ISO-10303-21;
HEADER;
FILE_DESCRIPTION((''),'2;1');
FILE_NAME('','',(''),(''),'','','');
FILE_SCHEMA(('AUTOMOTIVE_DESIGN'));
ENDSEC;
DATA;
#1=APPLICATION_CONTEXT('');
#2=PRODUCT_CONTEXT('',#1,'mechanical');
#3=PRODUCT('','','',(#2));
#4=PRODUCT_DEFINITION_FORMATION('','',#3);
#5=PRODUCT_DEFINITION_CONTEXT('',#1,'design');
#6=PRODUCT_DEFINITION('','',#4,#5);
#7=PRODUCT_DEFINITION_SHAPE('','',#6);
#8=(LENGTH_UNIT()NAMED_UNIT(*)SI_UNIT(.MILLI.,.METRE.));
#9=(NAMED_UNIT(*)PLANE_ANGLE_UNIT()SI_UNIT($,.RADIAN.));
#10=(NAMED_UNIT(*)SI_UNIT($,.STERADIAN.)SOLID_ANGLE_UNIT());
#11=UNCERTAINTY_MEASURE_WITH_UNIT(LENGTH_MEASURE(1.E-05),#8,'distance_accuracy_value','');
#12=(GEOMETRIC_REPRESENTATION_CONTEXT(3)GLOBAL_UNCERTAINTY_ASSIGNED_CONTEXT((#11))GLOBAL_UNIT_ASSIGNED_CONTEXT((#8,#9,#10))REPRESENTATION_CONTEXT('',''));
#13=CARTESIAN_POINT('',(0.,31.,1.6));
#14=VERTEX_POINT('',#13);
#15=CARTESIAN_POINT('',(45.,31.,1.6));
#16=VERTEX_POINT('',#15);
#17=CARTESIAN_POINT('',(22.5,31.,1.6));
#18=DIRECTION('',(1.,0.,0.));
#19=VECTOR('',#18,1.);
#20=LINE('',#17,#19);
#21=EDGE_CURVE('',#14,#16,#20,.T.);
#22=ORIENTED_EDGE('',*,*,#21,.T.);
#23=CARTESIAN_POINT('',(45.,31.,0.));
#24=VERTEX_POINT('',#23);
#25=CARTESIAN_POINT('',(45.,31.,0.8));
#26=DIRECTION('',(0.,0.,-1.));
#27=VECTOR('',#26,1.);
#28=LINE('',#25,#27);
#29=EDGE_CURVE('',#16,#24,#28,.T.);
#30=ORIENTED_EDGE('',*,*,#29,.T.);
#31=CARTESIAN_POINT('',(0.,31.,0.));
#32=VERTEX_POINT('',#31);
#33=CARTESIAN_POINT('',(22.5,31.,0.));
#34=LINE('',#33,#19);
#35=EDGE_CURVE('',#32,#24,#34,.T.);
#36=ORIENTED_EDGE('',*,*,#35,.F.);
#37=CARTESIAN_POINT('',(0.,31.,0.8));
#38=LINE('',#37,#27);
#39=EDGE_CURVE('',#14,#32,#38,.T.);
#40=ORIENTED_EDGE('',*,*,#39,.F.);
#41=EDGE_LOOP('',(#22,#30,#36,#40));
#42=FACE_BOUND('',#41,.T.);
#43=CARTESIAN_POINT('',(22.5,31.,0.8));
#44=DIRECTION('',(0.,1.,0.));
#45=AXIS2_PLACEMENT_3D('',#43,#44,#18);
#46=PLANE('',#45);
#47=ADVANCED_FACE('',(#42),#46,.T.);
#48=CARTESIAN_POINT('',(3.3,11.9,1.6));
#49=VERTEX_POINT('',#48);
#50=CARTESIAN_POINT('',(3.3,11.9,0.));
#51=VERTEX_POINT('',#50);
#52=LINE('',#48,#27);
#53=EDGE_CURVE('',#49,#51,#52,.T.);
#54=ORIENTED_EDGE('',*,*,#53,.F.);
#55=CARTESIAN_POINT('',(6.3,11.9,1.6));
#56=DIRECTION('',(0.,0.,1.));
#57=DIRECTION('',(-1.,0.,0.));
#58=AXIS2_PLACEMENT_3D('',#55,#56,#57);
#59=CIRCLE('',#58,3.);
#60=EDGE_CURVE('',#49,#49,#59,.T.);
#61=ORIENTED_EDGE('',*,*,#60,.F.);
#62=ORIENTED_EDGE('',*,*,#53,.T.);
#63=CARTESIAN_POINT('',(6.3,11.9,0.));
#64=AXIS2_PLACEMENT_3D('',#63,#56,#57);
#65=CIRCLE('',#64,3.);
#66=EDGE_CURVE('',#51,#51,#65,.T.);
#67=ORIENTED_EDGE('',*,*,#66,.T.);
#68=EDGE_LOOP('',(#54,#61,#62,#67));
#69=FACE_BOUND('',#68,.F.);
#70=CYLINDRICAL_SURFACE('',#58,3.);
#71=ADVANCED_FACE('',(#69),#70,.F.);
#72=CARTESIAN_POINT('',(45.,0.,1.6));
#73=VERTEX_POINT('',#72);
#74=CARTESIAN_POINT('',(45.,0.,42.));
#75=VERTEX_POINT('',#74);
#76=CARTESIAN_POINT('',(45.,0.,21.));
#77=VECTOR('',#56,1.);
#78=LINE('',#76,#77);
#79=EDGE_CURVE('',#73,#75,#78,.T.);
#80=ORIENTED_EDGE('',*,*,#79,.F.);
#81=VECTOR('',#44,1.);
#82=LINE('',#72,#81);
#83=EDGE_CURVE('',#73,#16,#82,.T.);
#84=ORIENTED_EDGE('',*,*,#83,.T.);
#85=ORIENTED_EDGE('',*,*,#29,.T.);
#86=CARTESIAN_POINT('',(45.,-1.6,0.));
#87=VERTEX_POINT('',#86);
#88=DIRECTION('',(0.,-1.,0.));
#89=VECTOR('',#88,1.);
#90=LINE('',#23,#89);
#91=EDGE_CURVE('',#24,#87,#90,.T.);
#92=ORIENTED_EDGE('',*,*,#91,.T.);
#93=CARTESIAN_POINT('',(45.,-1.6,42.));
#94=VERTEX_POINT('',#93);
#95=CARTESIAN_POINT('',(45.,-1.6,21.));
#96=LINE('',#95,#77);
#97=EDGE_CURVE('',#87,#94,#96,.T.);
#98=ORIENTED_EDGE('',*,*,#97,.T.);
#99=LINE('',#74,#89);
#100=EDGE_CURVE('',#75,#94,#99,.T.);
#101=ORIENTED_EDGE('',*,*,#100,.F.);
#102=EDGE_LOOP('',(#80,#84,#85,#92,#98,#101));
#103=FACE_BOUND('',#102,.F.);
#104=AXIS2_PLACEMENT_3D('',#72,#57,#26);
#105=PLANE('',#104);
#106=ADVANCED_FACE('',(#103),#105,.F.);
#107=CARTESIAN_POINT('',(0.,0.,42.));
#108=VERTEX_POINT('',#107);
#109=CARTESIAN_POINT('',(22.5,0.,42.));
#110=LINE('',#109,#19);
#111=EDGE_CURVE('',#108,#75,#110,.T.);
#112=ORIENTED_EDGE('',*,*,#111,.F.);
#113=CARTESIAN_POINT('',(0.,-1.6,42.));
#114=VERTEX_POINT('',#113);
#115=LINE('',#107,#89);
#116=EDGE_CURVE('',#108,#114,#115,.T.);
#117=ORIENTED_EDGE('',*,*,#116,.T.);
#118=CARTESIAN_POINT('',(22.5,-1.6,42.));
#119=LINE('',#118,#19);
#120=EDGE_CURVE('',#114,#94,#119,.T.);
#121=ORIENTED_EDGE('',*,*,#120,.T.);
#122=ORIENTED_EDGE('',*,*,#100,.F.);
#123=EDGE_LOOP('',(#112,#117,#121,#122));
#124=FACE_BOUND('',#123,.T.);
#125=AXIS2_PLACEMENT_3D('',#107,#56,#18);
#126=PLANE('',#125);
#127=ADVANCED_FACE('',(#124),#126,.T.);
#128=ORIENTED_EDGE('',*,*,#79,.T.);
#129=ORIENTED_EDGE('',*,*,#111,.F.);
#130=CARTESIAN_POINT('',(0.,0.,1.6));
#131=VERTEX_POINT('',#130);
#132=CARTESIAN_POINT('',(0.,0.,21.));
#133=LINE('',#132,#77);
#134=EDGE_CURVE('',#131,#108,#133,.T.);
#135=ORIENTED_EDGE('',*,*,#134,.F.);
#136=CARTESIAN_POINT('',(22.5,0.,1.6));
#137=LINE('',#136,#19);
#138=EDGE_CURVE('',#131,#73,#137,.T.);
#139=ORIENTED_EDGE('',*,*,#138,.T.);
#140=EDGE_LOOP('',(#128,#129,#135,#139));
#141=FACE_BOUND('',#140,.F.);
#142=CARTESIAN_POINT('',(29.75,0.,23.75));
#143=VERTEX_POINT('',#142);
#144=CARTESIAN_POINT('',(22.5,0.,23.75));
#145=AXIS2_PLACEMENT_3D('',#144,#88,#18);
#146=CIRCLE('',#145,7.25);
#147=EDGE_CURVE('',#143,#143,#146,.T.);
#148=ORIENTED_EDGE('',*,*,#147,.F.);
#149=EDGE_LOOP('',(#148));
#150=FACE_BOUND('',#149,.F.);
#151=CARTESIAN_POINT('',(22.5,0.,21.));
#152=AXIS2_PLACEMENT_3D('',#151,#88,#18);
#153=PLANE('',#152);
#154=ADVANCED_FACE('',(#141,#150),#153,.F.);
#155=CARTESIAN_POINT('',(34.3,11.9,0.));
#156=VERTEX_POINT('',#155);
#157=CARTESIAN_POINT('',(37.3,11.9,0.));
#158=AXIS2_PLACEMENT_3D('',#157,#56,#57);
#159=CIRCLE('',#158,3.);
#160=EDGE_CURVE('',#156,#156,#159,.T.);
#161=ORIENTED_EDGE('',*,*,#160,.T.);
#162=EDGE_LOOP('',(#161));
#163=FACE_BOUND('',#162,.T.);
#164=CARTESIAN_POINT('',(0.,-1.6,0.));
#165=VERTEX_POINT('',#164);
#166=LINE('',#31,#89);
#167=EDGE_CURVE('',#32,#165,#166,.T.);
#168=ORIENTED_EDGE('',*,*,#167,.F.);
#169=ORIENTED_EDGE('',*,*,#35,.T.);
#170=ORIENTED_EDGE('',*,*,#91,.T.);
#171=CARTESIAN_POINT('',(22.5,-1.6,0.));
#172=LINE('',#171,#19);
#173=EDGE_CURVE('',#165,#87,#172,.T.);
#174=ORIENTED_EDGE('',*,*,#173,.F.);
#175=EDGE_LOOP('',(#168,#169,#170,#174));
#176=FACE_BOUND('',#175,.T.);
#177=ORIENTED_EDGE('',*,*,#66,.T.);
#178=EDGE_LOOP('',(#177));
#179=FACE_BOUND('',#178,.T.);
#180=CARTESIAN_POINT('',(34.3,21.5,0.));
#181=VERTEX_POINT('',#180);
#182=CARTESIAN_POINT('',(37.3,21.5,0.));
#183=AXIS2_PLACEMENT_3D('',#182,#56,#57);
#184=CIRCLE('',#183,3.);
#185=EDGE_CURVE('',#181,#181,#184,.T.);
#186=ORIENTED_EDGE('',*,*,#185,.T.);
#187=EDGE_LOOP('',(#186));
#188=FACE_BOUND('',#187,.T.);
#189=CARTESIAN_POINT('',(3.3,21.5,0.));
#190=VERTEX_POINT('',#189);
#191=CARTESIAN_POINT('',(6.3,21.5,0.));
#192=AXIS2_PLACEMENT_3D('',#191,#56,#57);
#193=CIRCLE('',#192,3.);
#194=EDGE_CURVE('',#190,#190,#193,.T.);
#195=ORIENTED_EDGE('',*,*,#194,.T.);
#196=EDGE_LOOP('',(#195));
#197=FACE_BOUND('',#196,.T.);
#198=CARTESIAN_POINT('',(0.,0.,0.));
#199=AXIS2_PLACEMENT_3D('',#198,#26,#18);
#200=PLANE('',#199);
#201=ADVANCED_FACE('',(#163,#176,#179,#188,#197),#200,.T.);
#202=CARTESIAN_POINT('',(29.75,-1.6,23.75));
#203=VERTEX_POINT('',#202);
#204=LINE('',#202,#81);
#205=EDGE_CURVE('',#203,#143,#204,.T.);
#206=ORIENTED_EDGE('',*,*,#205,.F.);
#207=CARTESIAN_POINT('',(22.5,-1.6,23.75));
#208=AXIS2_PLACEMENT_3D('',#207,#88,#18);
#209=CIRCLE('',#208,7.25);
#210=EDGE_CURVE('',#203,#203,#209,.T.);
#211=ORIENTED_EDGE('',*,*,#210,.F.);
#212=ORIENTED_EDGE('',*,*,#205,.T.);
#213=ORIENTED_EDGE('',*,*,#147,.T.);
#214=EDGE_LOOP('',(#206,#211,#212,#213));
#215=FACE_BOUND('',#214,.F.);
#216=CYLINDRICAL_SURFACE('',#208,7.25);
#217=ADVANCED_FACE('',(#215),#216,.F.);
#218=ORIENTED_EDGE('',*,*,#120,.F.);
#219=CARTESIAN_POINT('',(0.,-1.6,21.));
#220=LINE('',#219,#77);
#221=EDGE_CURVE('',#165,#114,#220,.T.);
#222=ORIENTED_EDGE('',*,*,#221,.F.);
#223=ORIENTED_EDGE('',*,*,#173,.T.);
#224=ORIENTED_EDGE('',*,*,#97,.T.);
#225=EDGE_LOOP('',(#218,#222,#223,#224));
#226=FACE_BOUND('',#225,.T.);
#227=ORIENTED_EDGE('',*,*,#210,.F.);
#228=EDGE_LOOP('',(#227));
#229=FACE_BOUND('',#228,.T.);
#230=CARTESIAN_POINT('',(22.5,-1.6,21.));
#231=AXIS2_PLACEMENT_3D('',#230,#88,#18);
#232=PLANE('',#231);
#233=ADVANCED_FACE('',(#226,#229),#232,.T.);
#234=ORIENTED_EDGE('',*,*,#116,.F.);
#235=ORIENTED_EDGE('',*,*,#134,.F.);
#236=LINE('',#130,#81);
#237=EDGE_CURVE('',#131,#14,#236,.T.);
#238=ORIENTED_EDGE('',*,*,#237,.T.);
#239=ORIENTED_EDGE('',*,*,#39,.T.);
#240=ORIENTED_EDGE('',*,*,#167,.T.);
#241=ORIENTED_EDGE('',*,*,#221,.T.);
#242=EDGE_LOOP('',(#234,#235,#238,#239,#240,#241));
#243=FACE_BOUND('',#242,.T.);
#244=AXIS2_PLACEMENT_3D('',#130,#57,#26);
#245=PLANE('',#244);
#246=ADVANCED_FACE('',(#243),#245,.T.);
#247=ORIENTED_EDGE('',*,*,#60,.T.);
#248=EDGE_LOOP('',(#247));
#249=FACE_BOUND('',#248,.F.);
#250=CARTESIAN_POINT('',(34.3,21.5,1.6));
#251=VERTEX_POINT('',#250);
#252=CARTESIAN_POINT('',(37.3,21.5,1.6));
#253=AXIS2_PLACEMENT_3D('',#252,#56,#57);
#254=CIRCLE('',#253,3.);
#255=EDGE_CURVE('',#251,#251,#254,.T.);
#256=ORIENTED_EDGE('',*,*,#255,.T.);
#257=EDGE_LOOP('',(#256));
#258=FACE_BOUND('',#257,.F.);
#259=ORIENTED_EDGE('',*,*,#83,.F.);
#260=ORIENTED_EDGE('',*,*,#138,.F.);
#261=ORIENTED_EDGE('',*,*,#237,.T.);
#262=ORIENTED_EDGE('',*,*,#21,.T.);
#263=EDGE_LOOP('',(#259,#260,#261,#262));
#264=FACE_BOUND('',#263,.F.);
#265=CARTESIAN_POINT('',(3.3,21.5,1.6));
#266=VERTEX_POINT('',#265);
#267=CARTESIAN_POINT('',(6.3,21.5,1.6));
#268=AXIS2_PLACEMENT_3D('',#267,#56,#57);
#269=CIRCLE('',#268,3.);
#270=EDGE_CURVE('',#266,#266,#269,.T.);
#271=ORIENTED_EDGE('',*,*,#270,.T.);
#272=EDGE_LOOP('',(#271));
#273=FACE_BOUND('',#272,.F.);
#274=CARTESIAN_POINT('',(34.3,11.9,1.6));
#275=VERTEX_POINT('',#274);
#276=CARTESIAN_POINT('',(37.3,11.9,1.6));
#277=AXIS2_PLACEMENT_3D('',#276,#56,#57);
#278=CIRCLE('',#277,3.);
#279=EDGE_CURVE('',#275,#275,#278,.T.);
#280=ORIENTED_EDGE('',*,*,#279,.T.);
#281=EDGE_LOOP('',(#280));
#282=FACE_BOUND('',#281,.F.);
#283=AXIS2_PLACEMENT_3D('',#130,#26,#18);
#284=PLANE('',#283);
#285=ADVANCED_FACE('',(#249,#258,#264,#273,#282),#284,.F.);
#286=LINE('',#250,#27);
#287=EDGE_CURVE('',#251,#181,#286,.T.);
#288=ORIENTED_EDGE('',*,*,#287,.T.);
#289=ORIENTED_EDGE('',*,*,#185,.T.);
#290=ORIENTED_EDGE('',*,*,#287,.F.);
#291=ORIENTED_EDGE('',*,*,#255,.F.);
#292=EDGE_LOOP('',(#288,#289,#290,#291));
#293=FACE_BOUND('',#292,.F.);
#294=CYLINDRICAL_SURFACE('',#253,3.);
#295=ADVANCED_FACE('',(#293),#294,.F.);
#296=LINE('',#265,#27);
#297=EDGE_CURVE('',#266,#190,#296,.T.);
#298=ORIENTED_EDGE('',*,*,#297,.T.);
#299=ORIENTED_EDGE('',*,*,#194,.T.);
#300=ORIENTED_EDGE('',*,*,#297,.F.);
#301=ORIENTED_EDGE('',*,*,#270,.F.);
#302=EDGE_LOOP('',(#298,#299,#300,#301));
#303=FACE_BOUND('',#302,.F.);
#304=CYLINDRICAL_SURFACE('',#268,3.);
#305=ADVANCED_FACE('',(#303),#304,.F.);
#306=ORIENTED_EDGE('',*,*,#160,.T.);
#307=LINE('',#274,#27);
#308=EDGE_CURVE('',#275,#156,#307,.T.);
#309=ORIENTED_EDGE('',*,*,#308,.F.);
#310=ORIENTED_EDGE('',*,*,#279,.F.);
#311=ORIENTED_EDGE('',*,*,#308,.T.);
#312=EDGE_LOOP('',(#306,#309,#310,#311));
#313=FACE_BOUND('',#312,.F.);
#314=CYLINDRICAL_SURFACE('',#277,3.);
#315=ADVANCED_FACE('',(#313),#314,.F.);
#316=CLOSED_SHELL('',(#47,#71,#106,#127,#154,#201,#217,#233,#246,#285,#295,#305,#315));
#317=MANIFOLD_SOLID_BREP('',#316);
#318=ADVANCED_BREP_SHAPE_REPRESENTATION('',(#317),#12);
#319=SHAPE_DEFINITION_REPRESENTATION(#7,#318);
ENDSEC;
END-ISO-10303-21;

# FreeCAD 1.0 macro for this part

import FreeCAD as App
import Part
import Sketcher

V = App.Vector

doc = App.newDocument("Part")
body = doc.addObject("PartDesign::Body", "Body")

sketch1 = body.newObject("Sketcher::SketchObject", "Sketch")
sketch1.AttachmentSupport = (doc.getObject("XZ_Plane"), [""])
sketch1.MapMode = "FlatFace"
sketch1.addGeometry([
    Part.LineSegment(V(0, 42, 0), V(0, 0, 0)),
    Part.LineSegment(V(0, 0, 0), V(45, 0, 0)),
    Part.LineSegment(V(45, 0, 0), V(45, 42, 0)),
    Part.LineSegment(V(45, 42, 0), V(0, 42, 0)),
], False)
sketch1.addConstraint([
    Sketcher.Constraint("Coincident", 0, 2, 1, 1),
    Sketcher.Constraint("Coincident", 1, 2, 2, 1),
    Sketcher.Constraint("Coincident", 2, 2, 3, 1),
    Sketcher.Constraint("Coincident", 3, 2, 0, 1),
    Sketcher.Constraint("Vertical", 0),
    Sketcher.Constraint("Horizontal", 1),
    Sketcher.Constraint("Vertical", 2),
    Sketcher.Constraint("Horizontal", 3),
    Sketcher.Constraint("Coincident", 0, 2, -1, 1),
    Sketcher.Constraint("DistanceX", 1, 1, 1, 2, 45.0),
    Sketcher.Constraint("DistanceY", 0, 2, 0, 1, 42.0),
])
pad1 = body.newObject("PartDesign::Pad", "Pad")
pad1.Profile = sketch1
pad1.Length = 1.6

sketch2 = body.newObject("Sketcher::SketchObject", "Sketch001")
sketch2.AttachmentSupport = (doc.getObject("XZ_Plane"), [""])
sketch2.MapMode = "FlatFace"
sketch2.addGeometry([
    Part.LineSegment(V(0, 0, 0), V(0, 1.6, 0)),
    Part.LineSegment(V(0, 1.6, 0), V(45, 1.6, 0)),
    Part.LineSegment(V(45, 1.6, 0), V(45, 0, 0)),
    Part.LineSegment(V(45, 0, 0), V(0, 0, 0)),
], False)
sketch2.addConstraint([
    Sketcher.Constraint("Coincident", 0, 2, 1, 1),
    Sketcher.Constraint("Coincident", 1, 2, 2, 1),
    Sketcher.Constraint("Coincident", 2, 2, 3, 1),
    Sketcher.Constraint("Coincident", 3, 2, 0, 1),
    Sketcher.Constraint("Vertical", 0),
    Sketcher.Constraint("Horizontal", 1),
    Sketcher.Constraint("Vertical", 2),
    Sketcher.Constraint("Horizontal", 3),
    Sketcher.Constraint("Coincident", 3, 2, -1, 1),
    Sketcher.Constraint("DistanceX", 1, 1, 1, 2, 45.0),
    Sketcher.Constraint("DistanceY", 0, 1, 0, 2, 1.6),
])
pad2 = body.newObject("PartDesign::Pad", "Pad001")
pad2.Profile = sketch2
pad2.Length = 31
pad2.Reversed = True

sketch3 = body.newObject("Sketcher::SketchObject", "Sketch002")
sketch3.AttachmentSupport = (doc.getObject("XZ_Plane"), [""])
sketch3.MapMode = "FlatFace"
sketch3.AttachmentOffset = App.Placement(V(0, 0, 1.6), App.Rotation())
sketch3.addGeometry(Part.Circle(V(22.5, 23.75, 0), V(0, 0, 1), 7.25), False)
sketch3.addConstraint([
    Sketcher.Constraint("Diameter", 0, 14.5),
    Sketcher.Constraint("DistanceX", -1, 1, 0, 3, 22.5),
    Sketcher.Constraint("DistanceY", -1, 1, 0, 3, 23.75),
])
pocket1 = body.newObject("PartDesign::Pocket", "Pocket")
pocket1.Profile = sketch3
pocket1.Type = "ThroughAll"

sketch4 = body.newObject("Sketcher::SketchObject", "Sketch003")
sketch4.AttachmentSupport = (doc.getObject("XY_Plane"), [""])
sketch4.MapMode = "FlatFace"
sketch4.AttachmentOffset = App.Placement(V(0, 0, 1.6), App.Rotation())
sketch4.addGeometry(Part.Circle(V(6.3, 11.9, 0), V(0, 0, 1), 3), False)
sketch4.addConstraint([
    Sketcher.Constraint("Diameter", 0, 6.0),
    Sketcher.Constraint("DistanceX", -1, 1, 0, 3, 6.3),
    Sketcher.Constraint("DistanceY", -1, 1, 0, 3, 11.9),
])
pocket2 = body.newObject("PartDesign::Pocket", "Pocket001")
pocket2.Profile = sketch4
pocket2.Type = "ThroughAll"

sketch5 = body.newObject("Sketcher::SketchObject", "Sketch004")
sketch5.AttachmentSupport = (doc.getObject("XY_Plane"), [""])
sketch5.MapMode = "FlatFace"
sketch5.AttachmentOffset = App.Placement(V(0, 0, 1.6), App.Rotation())
sketch5.addGeometry(Part.Circle(V(6.3, 21.5, 0), V(0, 0, 1), 3), False)
sketch5.addConstraint([
    Sketcher.Constraint("Diameter", 0, 6.0),
    Sketcher.Constraint("DistanceX", -1, 1, 0, 3, 6.3),
    Sketcher.Constraint("DistanceY", -1, 1, 0, 3, 21.5),
])
pocket3 = body.newObject("PartDesign::Pocket", "Pocket002")
pocket3.Profile = sketch5
pocket3.Type = "ThroughAll"
doc.recompute()

linearpattern = body.newObject("PartDesign::LinearPattern", "LinearPattern")
linearpattern.Originals = [pocket2, pocket3]
linearpattern.Direction = (doc.getObject("X_Axis"), [""])
linearpattern.Mode = "offset"
linearpattern.Offset = 31
linearpattern.Occurrences = 2
body.Tip = linearpattern

doc.recompute()
